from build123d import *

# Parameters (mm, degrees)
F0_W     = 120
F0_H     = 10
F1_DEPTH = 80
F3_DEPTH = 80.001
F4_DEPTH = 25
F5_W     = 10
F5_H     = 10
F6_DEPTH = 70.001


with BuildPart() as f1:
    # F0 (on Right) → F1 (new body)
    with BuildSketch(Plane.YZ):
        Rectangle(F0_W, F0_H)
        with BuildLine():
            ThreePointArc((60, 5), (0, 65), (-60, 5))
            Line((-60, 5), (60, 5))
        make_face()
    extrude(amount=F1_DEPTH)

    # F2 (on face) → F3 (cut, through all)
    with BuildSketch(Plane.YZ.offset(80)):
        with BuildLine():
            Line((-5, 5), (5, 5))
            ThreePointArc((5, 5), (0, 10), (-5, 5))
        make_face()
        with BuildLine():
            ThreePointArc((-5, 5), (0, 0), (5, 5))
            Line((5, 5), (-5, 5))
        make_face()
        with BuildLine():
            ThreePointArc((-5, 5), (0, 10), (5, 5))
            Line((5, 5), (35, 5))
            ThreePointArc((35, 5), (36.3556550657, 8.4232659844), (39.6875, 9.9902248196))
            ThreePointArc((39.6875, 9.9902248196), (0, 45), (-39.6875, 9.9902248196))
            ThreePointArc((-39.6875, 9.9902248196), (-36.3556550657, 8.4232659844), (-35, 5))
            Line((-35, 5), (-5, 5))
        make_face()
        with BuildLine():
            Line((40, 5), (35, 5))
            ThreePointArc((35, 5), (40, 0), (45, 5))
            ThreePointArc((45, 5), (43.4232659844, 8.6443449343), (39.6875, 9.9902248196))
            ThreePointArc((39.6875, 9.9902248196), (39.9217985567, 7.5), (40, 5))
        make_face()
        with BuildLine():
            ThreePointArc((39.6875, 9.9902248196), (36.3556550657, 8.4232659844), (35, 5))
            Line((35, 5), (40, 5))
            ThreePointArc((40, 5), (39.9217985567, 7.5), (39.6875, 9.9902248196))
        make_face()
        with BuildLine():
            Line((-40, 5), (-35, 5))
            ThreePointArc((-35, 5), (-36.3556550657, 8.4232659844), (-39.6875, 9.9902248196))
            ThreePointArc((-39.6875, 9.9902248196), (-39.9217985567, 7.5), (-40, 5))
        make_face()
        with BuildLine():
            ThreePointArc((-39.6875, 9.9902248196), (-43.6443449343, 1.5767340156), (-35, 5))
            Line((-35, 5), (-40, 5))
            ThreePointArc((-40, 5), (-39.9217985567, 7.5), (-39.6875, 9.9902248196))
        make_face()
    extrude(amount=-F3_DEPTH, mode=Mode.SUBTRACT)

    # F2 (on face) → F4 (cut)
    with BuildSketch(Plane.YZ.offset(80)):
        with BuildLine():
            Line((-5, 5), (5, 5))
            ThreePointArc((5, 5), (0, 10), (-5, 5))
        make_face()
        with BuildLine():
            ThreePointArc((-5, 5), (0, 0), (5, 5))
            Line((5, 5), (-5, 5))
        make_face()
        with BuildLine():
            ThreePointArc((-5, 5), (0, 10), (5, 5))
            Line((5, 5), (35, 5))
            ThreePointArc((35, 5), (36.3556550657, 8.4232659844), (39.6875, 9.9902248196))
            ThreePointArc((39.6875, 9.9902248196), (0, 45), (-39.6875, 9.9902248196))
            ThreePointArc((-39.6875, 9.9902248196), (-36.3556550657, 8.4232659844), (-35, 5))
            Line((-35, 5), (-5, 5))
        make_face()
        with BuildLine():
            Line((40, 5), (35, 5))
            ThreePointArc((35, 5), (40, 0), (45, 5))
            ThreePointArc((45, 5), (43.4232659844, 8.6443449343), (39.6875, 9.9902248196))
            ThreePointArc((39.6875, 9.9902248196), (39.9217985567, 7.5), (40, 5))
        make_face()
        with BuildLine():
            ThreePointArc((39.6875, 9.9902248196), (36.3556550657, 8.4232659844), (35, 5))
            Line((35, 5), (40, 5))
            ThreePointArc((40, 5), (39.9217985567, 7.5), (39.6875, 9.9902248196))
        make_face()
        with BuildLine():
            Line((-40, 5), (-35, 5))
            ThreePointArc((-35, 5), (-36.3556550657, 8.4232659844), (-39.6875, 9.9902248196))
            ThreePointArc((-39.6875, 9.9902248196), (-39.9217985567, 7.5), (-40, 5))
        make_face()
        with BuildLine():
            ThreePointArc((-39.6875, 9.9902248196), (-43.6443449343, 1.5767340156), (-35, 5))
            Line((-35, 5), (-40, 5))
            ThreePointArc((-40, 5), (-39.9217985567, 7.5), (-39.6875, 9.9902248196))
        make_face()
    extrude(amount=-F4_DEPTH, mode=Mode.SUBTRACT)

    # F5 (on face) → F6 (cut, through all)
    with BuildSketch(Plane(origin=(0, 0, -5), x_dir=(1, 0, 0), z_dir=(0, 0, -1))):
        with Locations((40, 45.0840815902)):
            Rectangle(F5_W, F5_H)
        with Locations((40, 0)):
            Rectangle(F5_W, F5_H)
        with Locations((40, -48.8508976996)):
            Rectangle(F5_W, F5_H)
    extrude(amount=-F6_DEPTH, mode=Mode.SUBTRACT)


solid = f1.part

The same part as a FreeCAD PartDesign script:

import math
import FreeCAD as App
import Part
import Sketcher

V = App.Vector


def add_polygon(sketch, points):
    """Adds a closed chain of lines whose ends are joined by coincident constraints."""
    first, n = sketch.GeometryCount, len(points)
    for a, b in zip(points, points[1:] + points[:1]):
        sketch.addGeometry(Part.LineSegment(App.Vector(*a, 0), App.Vector(*b, 0)), False)
    for i in range(n):
        sketch.addConstraint(Sketcher.Constraint("Coincident", first + i, 2, first + (i + 1) % n, 1))

doc = App.newDocument("Part")
body = doc.addObject("PartDesign::Body", "Body")

sketch1 = body.newObject("Sketcher::SketchObject", "Sketch")
sketch1.AttachmentSupport = (doc.getObject("YZ_Plane"), [""])
sketch1.MapMode = "FlatFace"
sketch1.addGeometry([
    Part.LineSegment(V(-60, 5, 0), V(-60, -5, 0)),
    Part.LineSegment(V(-60, -5, 0), V(60, -5, 0)),
    Part.LineSegment(V(60, -5, 0), V(60, 5, 0)),
    Part.ArcOfCircle(Part.Circle(V(0, 5, 0), V(0, 0, 1), 60), math.radians(0), math.radians(180)),
], False)
sketch1.addConstraint([
    Sketcher.Constraint("Coincident", 0, 2, 1, 1),
    Sketcher.Constraint("Coincident", 1, 2, 2, 1),
    Sketcher.Constraint("Tangent", 2, 2, 3, 1),
    Sketcher.Constraint("Tangent", 3, 2, 0, 1),
    Sketcher.Constraint("Vertical", 0),
    Sketcher.Constraint("Horizontal", 1),
    Sketcher.Constraint("Vertical", 2),
    Sketcher.Constraint("Symmetric", 0, 2, 2, 2, -1, 1),
    Sketcher.Constraint("Radius", 3, 60.0),
    Sketcher.Constraint("DistanceY", 0, 2, 0, 1, 10.0),
])
pad1 = body.newObject("PartDesign::Pad", "Pad")
pad1.Profile = sketch1
pad1.Length = 80

sketch2 = body.newObject("Sketcher::SketchObject", "Sketch001")
sketch2.AttachmentSupport = (doc.getObject("YZ_Plane"), [""])
sketch2.MapMode = "FlatFace"
sketch2.AttachmentOffset = App.Placement(V(0, 0, 80), App.Rotation())
sketch2.addGeometry([
    Part.ArcOfCircle(Part.Circle(V(0, 5, 0), V(0, 0, 1), 5), math.radians(180), math.radians(360)),
    Part.LineSegment(V(5, 5, 0), V(35, 5, 0)),
    Part.ArcOfCircle(Part.Circle(V(40, 5, 0), V(0, 0, 1), 5), math.radians(180), math.radians(360)),
    Part.ArcOfCircle(Part.Circle(V(40, 5, 0), V(0, 0, 1), 5), math.radians(0), math.radians(94)),
    Part.ArcOfCircle(Part.Circle(V(0, 5, 0), V(0, 0, 1), 40), math.radians(7), math.radians(173)),
    Part.ArcOfCircle(Part.Circle(V(-40, 5, 0), V(0, 0, 1), 5), math.radians(86), math.radians(360)),
    Part.LineSegment(V(-35, 5, 0), V(-5, 5, 0)),
], False)
sketch2.addConstraint([
    Sketcher.Constraint("Coincident", 0, 2, 1, 1),
    Sketcher.Constraint("Coincident", 1, 2, 2, 1),
    Sketcher.Constraint("Tangent", 2, 2, 3, 1),
    Sketcher.Constraint("Coincident", 3, 2, 4, 1),
    Sketcher.Constraint("Coincident", 4, 2, 5, 1),
    Sketcher.Constraint("Coincident", 5, 2, 6, 1),
    Sketcher.Constraint("Coincident", 6, 2, 0, 1),
    Sketcher.Constraint("Horizontal", 1),
    Sketcher.Constraint("Horizontal", 6),
    Sketcher.Constraint("Coincident", 4, 3, 0, 3),
    Sketcher.Constraint("Equal", 0, 2),
    Sketcher.Constraint("Equal", 2, 3),
    Sketcher.Constraint("Equal", 3, 5),
    Sketcher.Constraint("Symmetric", 2, 3, 5, 3, -2),
    Sketcher.Constraint("Symmetric", 0, 2, 6, 2, -2),
    Sketcher.Constraint("Horizontal", 0, 3, 2, 3),
    Sketcher.Constraint("Horizontal", 5, 3, 0, 2),
    Sketcher.Constraint("Horizontal", 1, 2, 2, 2),
    Sketcher.Constraint("Radius", 0, 5.0),
    Sketcher.Constraint("Radius", 4, 40.0),
    Sketcher.Constraint("DistanceX", 1, 1, 1, 2, 30.0),
    Sketcher.Constraint("DistanceY", -1, 1, 0, 3, 5.0),
])
pocket1 = body.newObject("PartDesign::Pocket", "Pocket")
pocket1.Profile = sketch2
pocket1.Type = "ThroughAll"

sketch3 = body.newObject("Sketcher::SketchObject", "Sketch002")
sketch3.AttachmentSupport = (doc.getObject("YZ_Plane"), [""])
sketch3.MapMode = "FlatFace"
sketch3.AttachmentOffset = App.Placement(V(0, 0, 80), App.Rotation())
sketch3.addGeometry([
    Part.ArcOfCircle(Part.Circle(V(0, 5, 0), V(0, 0, 1), 5), math.radians(180), math.radians(360)),
    Part.LineSegment(V(5, 5, 0), V(35, 5, 0)),
    Part.ArcOfCircle(Part.Circle(V(40, 5, 0), V(0, 0, 1), 5), math.radians(180), math.radians(360)),
    Part.ArcOfCircle(Part.Circle(V(40, 5, 0), V(0, 0, 1), 5), math.radians(0), math.radians(94)),
    Part.ArcOfCircle(Part.Circle(V(0, 5, 0), V(0, 0, 1), 40), math.radians(7), math.radians(173)),
    Part.ArcOfCircle(Part.Circle(V(-40, 5, 0), V(0, 0, 1), 5), math.radians(86), math.radians(360)),
    Part.LineSegment(V(-35, 5, 0), V(-5, 5, 0)),
], False)
sketch3.addConstraint([
    Sketcher.Constraint("Coincident", 0, 2, 1, 1),
    Sketcher.Constraint("Coincident", 1, 2, 2, 1),
    Sketcher.Constraint("Tangent", 2, 2, 3, 1),
    Sketcher.Constraint("Coincident", 3, 2, 4, 1),
    Sketcher.Constraint("Coincident", 4, 2, 5, 1),
    Sketcher.Constraint("Coincident", 5, 2, 6, 1),
    Sketcher.Constraint("Coincident", 6, 2, 0, 1),
    Sketcher.Constraint("Horizontal", 1),
    Sketcher.Constraint("Horizontal", 6),
    Sketcher.Constraint("Coincident", 4, 3, 0, 3),
    Sketcher.Constraint("Equal", 0, 2),
    Sketcher.Constraint("Equal", 2, 3),
    Sketcher.Constraint("Equal", 3, 5),
    Sketcher.Constraint("Symmetric", 2, 3, 5, 3, -2),
    Sketcher.Constraint("Symmetric", 0, 2, 6, 2, -2),
    Sketcher.Constraint("Horizontal", 0, 3, 2, 3),
    Sketcher.Constraint("Horizontal", 5, 3, 0, 2),
    Sketcher.Constraint("Horizontal", 1, 2, 2, 2),
    Sketcher.Constraint("Radius", 0, 5.0),
    Sketcher.Constraint("Radius", 4, 40.0),
    Sketcher.Constraint("DistanceX", 1, 1, 1, 2, 30.0),
    Sketcher.Constraint("DistanceY", -1, 1, 0, 3, 5.0),
])
pocket2 = body.newObject("PartDesign::Pocket", "Pocket001")
pocket2.Profile = sketch3
pocket2.Length = 25

sketch4 = body.newObject("Sketcher::SketchObject", "Sketch003")
sketch4.AttachmentSupport = (doc.getObject("XY_Plane"), [""])
sketch4.MapMode = "FlatFace"
sketch4.AttachmentOffset = App.Placement(V(0, 0, -5), App.Rotation())
add_polygon(sketch4, [(35, -50), (35, -40), (45, -40), (45, -50)])
add_polygon(sketch4, [(35, -5), (35, 5), (45, 5), (45, -5)])
add_polygon(sketch4, [(35, 44), (35, 54), (45, 54), (45, 44)])
sketch4.addConstraint([
    Sketcher.Constraint("Vertical", 0),
    Sketcher.Constraint("Horizontal", 1),
    Sketcher.Constraint("Vertical", 2),
    Sketcher.Constraint("Horizontal", 3),
    Sketcher.Constraint("Vertical", 4),
    Sketcher.Constraint("Horizontal", 5),
    Sketcher.Constraint("Vertical", 6),
    Sketcher.Constraint("Horizontal", 7),
    Sketcher.Constraint("Vertical", 8),
    Sketcher.Constraint("Horizontal", 9),
    Sketcher.Constraint("Vertical", 10),
    Sketcher.Constraint("Horizontal", 11),
    Sketcher.Constraint("Vertical", 3, 2, 4, 2),
    Sketcher.Constraint("Vertical", 2, 2, 5, 2),
    Sketcher.Constraint("Vertical", 7, 2, 8, 2),
    Sketcher.Constraint("Vertical", 6, 2, 9, 2),
    Sketcher.Constraint("Equal", 11, 0),
    Sketcher.Constraint("Equal", 2, 4),
    Sketcher.Constraint("Equal", 6, 8),
    Sketcher.Constraint("DistanceX", 1, 1, 1, 2, 10.0),
    Sketcher.Constraint("DistanceX", -1, 1, 0, 2, 35.0),
    Sketcher.Constraint("DistanceY", -1, 1, 4, 2, 5.0),
    Sketcher.Constraint("DistanceY", 0, 2, -1, 1, 40.084082),
    Sketcher.Constraint("DistanceY", 0, 2, 8, 2, 93.934979),
])
pocket3 = body.newObject("PartDesign::Pocket", "Pocket002")
pocket3.Profile = sketch4
pocket3.Type = "ThroughAll"
pocket3.Reversed = True

doc.recompute()
